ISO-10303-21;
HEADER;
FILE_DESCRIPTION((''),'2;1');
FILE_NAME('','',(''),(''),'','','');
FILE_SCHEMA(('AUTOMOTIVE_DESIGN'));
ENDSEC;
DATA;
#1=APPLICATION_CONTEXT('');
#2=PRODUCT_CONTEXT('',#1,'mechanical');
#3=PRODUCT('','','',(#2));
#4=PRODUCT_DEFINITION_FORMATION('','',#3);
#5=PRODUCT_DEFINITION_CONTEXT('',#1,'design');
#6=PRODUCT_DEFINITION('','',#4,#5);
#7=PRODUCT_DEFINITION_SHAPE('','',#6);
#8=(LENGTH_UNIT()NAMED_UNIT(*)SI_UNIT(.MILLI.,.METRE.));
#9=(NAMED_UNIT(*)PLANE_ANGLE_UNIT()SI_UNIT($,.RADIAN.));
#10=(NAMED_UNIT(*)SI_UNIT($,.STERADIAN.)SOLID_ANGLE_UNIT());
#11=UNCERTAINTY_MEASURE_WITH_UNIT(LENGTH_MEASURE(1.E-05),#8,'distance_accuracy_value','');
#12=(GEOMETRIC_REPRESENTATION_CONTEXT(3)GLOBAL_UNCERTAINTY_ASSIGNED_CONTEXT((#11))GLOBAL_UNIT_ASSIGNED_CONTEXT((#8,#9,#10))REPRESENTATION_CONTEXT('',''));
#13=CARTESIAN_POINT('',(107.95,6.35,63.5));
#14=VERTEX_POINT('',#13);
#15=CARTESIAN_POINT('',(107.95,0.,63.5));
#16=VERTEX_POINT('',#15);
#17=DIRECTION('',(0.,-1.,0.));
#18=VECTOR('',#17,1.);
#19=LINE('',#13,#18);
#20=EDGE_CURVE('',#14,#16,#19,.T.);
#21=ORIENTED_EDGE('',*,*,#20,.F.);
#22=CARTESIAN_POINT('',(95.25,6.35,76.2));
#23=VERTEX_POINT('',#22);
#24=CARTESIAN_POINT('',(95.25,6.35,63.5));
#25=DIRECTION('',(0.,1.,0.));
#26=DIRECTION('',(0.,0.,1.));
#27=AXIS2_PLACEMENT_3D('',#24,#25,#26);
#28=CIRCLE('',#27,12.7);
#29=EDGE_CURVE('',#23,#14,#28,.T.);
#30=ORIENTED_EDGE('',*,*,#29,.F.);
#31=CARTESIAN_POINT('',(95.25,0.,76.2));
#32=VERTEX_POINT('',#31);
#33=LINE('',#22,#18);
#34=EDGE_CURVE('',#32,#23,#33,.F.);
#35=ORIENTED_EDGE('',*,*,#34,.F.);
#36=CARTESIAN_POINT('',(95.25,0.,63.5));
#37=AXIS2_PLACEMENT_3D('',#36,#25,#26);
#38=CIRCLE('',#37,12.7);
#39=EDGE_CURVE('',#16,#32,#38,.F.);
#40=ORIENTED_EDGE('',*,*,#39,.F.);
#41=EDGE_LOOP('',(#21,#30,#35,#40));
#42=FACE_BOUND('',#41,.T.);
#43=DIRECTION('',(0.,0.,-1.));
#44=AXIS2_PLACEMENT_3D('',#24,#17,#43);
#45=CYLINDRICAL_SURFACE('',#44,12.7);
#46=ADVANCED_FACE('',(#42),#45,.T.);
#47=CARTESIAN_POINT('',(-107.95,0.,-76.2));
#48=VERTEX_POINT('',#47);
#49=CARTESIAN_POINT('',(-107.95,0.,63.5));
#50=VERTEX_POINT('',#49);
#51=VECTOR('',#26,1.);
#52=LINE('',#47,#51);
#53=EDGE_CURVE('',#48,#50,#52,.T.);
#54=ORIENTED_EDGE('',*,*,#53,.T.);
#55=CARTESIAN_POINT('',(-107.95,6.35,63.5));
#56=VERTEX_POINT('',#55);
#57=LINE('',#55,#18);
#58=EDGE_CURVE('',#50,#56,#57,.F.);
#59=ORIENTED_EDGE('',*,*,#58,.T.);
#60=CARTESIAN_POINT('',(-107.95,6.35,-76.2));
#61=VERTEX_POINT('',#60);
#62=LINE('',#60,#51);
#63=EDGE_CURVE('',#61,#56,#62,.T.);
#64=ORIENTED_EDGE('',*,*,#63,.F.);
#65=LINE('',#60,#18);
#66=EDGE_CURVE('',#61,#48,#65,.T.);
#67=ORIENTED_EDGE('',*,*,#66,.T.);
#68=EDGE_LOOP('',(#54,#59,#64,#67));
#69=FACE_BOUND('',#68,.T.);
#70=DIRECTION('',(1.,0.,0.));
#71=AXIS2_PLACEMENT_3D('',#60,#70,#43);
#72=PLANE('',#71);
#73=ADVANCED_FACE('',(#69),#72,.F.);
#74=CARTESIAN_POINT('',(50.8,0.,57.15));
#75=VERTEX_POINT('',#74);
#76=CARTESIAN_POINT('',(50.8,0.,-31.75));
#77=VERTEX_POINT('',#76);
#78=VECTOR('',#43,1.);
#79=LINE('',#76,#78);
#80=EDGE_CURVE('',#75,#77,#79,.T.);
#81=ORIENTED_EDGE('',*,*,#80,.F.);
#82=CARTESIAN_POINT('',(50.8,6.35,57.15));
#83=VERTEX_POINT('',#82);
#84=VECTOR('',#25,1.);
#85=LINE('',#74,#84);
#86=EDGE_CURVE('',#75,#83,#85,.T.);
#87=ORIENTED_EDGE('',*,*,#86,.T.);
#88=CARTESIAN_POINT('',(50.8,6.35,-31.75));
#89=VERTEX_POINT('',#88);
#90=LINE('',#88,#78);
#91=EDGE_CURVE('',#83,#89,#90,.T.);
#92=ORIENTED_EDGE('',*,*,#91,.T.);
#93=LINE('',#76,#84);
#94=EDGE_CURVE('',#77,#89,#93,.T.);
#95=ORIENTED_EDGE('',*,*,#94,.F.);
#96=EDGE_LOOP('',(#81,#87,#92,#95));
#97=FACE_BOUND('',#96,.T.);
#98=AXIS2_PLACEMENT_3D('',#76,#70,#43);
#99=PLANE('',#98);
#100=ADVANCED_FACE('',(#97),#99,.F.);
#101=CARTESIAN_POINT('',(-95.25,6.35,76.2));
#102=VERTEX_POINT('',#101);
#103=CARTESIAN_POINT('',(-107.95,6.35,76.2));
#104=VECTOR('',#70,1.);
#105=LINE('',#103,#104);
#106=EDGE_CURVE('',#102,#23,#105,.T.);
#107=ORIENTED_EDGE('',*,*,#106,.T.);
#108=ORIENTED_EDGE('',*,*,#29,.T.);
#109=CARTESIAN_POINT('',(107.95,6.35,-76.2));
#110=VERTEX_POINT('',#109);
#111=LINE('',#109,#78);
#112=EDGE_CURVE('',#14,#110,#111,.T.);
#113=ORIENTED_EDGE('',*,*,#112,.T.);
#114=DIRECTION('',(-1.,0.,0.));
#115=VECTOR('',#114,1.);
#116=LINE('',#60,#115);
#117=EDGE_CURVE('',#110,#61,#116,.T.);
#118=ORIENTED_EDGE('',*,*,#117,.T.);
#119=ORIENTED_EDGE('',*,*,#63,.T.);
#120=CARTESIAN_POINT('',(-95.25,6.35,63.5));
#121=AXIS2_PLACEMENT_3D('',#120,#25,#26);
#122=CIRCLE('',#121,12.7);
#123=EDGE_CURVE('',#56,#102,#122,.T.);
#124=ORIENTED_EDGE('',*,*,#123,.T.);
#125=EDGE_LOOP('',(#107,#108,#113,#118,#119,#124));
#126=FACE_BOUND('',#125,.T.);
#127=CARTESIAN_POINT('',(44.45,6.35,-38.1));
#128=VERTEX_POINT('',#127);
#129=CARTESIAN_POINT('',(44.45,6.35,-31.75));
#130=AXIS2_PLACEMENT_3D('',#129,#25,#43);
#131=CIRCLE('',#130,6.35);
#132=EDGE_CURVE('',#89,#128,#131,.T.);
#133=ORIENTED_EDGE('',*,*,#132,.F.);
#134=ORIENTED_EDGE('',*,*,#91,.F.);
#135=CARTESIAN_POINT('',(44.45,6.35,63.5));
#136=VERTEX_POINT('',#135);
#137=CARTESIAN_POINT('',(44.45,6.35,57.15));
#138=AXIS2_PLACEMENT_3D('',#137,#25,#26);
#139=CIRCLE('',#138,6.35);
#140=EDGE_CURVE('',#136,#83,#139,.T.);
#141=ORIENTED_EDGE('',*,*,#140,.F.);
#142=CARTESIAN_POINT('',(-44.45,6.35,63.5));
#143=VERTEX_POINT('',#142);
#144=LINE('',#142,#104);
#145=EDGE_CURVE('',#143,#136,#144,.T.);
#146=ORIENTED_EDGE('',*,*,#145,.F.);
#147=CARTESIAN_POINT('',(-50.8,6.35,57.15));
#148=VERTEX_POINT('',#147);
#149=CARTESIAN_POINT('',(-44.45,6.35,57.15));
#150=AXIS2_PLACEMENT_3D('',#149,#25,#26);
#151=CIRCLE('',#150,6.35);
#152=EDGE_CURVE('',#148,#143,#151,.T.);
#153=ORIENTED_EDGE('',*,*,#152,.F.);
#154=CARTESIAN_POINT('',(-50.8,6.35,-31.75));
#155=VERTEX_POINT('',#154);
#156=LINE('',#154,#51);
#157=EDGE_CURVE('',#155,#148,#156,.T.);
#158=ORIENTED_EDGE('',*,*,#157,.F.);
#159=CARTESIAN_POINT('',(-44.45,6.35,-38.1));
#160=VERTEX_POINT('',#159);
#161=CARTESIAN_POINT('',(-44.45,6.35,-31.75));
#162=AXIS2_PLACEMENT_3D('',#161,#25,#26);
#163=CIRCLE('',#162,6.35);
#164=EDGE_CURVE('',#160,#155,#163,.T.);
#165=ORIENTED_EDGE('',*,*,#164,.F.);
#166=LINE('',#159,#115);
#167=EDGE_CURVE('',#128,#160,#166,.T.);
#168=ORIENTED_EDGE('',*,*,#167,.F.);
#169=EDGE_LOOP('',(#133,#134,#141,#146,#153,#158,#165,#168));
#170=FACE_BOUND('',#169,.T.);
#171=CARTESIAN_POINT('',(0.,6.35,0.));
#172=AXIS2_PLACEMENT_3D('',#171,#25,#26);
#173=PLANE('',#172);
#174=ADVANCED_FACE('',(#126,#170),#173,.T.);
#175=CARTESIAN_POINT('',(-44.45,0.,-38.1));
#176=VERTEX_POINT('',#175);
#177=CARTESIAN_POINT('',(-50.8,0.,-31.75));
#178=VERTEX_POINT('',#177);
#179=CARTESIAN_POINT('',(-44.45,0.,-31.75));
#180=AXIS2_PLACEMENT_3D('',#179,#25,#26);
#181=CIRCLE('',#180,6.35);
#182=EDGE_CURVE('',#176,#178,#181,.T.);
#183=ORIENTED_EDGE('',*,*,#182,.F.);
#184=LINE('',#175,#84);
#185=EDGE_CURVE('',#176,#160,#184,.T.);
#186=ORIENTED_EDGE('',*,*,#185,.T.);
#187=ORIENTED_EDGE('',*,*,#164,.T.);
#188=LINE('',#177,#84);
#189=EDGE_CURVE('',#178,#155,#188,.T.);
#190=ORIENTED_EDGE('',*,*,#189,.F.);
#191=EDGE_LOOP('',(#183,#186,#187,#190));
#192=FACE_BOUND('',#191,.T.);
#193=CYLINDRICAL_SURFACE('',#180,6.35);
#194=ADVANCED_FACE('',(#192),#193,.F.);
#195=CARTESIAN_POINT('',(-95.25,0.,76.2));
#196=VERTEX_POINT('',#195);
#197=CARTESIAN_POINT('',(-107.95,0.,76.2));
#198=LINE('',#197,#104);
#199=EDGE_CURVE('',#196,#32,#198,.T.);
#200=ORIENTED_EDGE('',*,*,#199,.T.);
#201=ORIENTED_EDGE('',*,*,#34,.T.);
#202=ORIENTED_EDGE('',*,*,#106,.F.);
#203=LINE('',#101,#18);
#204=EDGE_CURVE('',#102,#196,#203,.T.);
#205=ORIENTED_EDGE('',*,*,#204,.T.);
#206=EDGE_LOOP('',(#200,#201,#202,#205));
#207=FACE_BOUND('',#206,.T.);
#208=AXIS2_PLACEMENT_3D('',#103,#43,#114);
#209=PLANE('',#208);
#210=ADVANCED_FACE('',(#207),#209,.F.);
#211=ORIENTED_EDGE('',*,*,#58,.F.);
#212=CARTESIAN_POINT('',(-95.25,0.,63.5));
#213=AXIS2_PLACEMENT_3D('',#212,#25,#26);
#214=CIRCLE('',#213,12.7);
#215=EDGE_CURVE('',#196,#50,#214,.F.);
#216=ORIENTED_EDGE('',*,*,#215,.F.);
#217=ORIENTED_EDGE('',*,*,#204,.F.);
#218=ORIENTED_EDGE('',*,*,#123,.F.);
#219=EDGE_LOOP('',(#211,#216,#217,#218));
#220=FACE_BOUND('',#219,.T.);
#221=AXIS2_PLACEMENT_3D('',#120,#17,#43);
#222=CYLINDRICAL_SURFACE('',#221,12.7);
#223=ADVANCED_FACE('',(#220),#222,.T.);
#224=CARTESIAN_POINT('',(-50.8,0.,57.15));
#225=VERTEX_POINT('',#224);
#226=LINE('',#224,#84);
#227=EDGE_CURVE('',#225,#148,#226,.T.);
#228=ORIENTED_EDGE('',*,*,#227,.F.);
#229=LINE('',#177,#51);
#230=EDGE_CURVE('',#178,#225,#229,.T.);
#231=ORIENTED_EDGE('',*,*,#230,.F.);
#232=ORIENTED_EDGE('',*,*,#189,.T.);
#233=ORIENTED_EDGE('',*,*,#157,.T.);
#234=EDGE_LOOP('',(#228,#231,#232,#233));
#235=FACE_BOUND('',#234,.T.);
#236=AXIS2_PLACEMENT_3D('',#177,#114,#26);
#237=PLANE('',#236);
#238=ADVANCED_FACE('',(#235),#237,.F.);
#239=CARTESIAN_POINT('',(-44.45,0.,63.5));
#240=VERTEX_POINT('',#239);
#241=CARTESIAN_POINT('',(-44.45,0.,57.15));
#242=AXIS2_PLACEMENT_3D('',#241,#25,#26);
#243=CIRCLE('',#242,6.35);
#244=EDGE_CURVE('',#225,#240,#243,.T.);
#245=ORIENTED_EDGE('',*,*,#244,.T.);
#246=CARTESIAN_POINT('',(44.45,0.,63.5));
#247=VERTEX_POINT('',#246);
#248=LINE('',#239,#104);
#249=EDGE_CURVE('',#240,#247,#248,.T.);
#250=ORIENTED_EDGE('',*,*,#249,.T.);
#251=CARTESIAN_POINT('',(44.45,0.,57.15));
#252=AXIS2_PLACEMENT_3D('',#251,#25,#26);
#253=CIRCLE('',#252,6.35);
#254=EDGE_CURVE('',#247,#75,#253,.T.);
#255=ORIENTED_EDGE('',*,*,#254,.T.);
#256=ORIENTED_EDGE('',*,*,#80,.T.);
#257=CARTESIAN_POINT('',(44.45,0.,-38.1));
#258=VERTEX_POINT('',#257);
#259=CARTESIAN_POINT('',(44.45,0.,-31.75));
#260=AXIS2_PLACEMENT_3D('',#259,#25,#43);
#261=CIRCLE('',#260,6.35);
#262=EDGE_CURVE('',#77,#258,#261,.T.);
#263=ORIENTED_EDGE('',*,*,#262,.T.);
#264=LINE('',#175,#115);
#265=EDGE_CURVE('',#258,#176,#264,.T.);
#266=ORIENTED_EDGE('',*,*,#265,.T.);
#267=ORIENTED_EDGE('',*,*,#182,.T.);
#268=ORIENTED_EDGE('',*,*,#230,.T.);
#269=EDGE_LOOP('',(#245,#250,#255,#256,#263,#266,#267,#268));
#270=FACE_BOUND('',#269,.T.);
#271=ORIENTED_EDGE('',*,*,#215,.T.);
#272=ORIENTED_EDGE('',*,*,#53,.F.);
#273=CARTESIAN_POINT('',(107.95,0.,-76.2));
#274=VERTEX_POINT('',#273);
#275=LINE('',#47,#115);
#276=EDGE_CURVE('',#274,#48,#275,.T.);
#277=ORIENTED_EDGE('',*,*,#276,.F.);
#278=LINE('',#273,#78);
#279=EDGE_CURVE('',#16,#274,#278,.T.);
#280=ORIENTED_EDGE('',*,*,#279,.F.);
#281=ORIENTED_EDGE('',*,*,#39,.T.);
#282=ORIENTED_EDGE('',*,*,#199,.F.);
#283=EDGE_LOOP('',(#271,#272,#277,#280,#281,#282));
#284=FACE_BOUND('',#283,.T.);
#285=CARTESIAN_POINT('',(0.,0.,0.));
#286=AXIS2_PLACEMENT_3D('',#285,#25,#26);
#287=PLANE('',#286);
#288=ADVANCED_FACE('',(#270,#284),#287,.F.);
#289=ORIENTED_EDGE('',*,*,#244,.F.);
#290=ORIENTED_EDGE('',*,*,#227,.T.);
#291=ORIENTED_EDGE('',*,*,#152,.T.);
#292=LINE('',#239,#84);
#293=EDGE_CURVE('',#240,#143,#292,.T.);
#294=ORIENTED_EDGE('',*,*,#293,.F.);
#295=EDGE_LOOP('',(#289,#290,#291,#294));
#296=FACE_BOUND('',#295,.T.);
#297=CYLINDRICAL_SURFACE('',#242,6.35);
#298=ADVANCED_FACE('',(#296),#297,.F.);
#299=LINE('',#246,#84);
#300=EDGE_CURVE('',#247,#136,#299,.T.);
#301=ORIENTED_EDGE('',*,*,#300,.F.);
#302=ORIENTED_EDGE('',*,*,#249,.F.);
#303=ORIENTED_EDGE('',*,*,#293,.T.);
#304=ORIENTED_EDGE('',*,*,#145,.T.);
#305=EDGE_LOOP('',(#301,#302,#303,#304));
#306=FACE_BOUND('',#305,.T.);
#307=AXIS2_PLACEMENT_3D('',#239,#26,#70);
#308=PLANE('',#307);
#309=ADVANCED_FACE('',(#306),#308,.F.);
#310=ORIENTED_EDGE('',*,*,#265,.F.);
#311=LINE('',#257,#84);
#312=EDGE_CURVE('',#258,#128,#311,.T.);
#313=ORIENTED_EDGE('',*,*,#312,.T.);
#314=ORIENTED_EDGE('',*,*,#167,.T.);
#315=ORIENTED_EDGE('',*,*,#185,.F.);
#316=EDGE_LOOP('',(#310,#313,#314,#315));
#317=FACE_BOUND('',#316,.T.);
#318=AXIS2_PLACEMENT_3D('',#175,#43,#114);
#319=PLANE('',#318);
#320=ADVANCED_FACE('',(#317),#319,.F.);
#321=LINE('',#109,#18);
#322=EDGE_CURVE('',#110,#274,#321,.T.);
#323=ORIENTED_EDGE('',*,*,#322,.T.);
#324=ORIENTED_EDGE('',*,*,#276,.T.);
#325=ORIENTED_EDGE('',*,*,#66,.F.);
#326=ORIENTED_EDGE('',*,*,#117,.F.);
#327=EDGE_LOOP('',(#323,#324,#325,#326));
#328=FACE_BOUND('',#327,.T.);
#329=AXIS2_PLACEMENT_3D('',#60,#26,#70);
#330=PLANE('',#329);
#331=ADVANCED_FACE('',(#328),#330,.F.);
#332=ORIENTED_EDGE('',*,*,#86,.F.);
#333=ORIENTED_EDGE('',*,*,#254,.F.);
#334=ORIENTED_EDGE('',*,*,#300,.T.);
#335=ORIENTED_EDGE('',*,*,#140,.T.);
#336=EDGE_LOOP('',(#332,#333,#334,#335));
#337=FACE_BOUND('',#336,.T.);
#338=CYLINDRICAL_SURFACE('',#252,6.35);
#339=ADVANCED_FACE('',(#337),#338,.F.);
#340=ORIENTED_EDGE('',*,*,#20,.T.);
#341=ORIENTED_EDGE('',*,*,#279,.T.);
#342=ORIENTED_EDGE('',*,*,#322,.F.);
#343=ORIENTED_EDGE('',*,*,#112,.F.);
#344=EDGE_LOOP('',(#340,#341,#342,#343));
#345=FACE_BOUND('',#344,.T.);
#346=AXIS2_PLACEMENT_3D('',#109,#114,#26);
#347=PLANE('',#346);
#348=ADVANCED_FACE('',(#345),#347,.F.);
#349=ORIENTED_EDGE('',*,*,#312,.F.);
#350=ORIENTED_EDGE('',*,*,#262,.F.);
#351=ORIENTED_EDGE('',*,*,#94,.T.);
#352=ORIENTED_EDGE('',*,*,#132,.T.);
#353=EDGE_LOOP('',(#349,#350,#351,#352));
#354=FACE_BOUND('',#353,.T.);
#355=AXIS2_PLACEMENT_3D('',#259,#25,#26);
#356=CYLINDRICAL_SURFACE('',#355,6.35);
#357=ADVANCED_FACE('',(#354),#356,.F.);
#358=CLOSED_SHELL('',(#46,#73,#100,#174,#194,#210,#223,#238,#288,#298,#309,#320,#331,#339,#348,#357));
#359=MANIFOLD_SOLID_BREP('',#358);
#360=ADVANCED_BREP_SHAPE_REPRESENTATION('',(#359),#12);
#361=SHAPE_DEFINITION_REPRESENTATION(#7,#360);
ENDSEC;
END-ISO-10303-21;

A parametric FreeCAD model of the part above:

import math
import FreeCAD as App
import Part
import Sketcher
from FreeCAD import Vector
Q = App.Units.Quantity


def edges_at(feature, points):
    """Names of the edges that pass closest to the given points."""
    edges = feature.Shape.Edges
    near = lambda p: min(range(len(edges)), key=lambda i: edges[i].distToShape(Part.Vertex(*p))[0])
    return sorted({f"Edge{near(p) + 1}" for p in points})

doc = App.newDocument("Part")
body = doc.addObject("PartDesign::Body", "Body")

# Sketch on XZ plane
sketch1 = body.newObject("Sketcher::SketchObject", "Sketch")
sketch1.AttachmentSupport = (doc.getObject("XZ_Plane"), [""])
sketch1.MapMode = "FlatFace"
sketch1.addGeometry([
    Part.LineSegment(Vector(-108, -76, 0), Vector(-108, 76, 0)),
    Part.LineSegment(Vector(-108, 76, 0), Vector(108, 76, 0)),
    Part.LineSegment(Vector(108, 76, 0), Vector(108, -76, 0)),
    Part.LineSegment(Vector(108, -76, 0), Vector(-108, -76, 0)),
], False)
sketch1.addConstraint([
    Sketcher.Constraint("Coincident", 0, 2, 1, 1),
    Sketcher.Constraint("Coincident", 1, 2, 2, 1),
    Sketcher.Constraint("Coincident", 2, 2, 3, 1),
    Sketcher.Constraint("Coincident", 3, 2, 0, 1),
    Sketcher.Constraint("Vertical", 0),
    Sketcher.Constraint("Horizontal", 1),
    Sketcher.Constraint("Vertical", 2),
    Sketcher.Constraint("Horizontal", 3),
    Sketcher.Constraint("Symmetric", 0, 2, 2, 2, -1, 1),
    Sketcher.Constraint("DistanceY", 0, 1, 0, 2, Q("6 in")),
    Sketcher.Constraint("DistanceX", 1, 1, 1, 2, Q("8.5 in")),
])
pad1 = body.newObject("PartDesign::Pad", "Pad")
pad1.Profile = sketch1
pad1.Length = Q("0.25 in")
pad1.Reversed = True
doc.recompute()

fillet = body.newObject("PartDesign::Fillet", "Fillet")
fillet.Base = (pad1, edges_at(pad1, [(107.95, 3.175, 76.2), (-107.95, 3.175, 76.2)]))
fillet.Radius = Q("0.5 in")

# Sketch on XZ plane
sketch2 = body.newObject("Sketcher::SketchObject", "Sketch001")
sketch2.AttachmentSupport = (doc.getObject("XZ_Plane"), [""])
sketch2.MapMode = "FlatFace"
sketch2.AttachmentOffset = App.Placement(Vector(0, 0, -0.25 * 25.4), App.Rotation())
sketch2.addGeometry([
    Part.LineSegment(Vector(44, -38, 0), Vector(-44, -38, 0)),  # 0
    Part.ArcOfCircle(Part.Circle(Vector(-44, -32, 0), Vector(0, 0, 1), 6), math.radians(180), math.radians(270)),  # 1
    Part.LineSegment(Vector(-51, -32, 0), Vector(-51, 57, 0)),  # 2
    Part.ArcOfCircle(Part.Circle(Vector(-44, 57, 0), Vector(0, 0, 1), 6), math.radians(90), math.radians(180)),  # 3
    Part.LineSegment(Vector(-44, 64, 0), Vector(44, 64, 0)),  # 4
    Part.ArcOfCircle(Part.Circle(Vector(44, 57, 0), Vector(0, 0, 1), 6), math.radians(0), math.radians(90)),  # 5
    Part.LineSegment(Vector(51, 57, 0), Vector(51, -32, 0)),  # 6
    Part.ArcOfCircle(Part.Circle(Vector(44, -32, 0), Vector(0, 0, 1), 6), math.radians(-90), math.radians(0)),  # 7
], False)
sketch2.addConstraint([
    Sketcher.Constraint("Tangent", 0, 2, 1, 2),
    Sketcher.Constraint("Tangent", 1, 1, 2, 1),
    Sketcher.Constraint("Tangent", 2, 2, 3, 2),
    Sketcher.Constraint("Tangent", 3, 1, 4, 1),
    Sketcher.Constraint("Tangent", 4, 2, 5, 2),
    Sketcher.Constraint("Tangent", 5, 1, 6, 1),
    Sketcher.Constraint("Tangent", 6, 2, 7, 2),
    Sketcher.Constraint("Tangent", 7, 1, 0, 1),
    Sketcher.Constraint("Horizontal", 0),
    Sketcher.Constraint("Vertical", 2),
    Sketcher.Constraint("Horizontal", 4),
    Sketcher.Constraint("Vertical", 6),
    Sketcher.Constraint("Equal", 1, 3),
    Sketcher.Constraint("Equal", 3, 5),
    Sketcher.Constraint("Equal", 5, 7),
    Sketcher.Constraint("Equal", 4, 2),
    Sketcher.Constraint("Radius", 1, Q("0.25 in")),
    Sketcher.Constraint("DistanceX", 0, 2, 0, 1, Q("3.5 in")),
    Sketcher.Constraint("DistanceX", 1, 1, -1, 1, Q("2 in")),
    Sketcher.Constraint("DistanceY", 0, 2, -1, 1, Q("1.5 in")),
])
pocket1 = body.newObject("PartDesign::Pocket", "Pocket")
pocket1.Profile = sketch2
pocket1.Type = "ThroughAll"
pocket1.Reversed = True

doc.recompute()
